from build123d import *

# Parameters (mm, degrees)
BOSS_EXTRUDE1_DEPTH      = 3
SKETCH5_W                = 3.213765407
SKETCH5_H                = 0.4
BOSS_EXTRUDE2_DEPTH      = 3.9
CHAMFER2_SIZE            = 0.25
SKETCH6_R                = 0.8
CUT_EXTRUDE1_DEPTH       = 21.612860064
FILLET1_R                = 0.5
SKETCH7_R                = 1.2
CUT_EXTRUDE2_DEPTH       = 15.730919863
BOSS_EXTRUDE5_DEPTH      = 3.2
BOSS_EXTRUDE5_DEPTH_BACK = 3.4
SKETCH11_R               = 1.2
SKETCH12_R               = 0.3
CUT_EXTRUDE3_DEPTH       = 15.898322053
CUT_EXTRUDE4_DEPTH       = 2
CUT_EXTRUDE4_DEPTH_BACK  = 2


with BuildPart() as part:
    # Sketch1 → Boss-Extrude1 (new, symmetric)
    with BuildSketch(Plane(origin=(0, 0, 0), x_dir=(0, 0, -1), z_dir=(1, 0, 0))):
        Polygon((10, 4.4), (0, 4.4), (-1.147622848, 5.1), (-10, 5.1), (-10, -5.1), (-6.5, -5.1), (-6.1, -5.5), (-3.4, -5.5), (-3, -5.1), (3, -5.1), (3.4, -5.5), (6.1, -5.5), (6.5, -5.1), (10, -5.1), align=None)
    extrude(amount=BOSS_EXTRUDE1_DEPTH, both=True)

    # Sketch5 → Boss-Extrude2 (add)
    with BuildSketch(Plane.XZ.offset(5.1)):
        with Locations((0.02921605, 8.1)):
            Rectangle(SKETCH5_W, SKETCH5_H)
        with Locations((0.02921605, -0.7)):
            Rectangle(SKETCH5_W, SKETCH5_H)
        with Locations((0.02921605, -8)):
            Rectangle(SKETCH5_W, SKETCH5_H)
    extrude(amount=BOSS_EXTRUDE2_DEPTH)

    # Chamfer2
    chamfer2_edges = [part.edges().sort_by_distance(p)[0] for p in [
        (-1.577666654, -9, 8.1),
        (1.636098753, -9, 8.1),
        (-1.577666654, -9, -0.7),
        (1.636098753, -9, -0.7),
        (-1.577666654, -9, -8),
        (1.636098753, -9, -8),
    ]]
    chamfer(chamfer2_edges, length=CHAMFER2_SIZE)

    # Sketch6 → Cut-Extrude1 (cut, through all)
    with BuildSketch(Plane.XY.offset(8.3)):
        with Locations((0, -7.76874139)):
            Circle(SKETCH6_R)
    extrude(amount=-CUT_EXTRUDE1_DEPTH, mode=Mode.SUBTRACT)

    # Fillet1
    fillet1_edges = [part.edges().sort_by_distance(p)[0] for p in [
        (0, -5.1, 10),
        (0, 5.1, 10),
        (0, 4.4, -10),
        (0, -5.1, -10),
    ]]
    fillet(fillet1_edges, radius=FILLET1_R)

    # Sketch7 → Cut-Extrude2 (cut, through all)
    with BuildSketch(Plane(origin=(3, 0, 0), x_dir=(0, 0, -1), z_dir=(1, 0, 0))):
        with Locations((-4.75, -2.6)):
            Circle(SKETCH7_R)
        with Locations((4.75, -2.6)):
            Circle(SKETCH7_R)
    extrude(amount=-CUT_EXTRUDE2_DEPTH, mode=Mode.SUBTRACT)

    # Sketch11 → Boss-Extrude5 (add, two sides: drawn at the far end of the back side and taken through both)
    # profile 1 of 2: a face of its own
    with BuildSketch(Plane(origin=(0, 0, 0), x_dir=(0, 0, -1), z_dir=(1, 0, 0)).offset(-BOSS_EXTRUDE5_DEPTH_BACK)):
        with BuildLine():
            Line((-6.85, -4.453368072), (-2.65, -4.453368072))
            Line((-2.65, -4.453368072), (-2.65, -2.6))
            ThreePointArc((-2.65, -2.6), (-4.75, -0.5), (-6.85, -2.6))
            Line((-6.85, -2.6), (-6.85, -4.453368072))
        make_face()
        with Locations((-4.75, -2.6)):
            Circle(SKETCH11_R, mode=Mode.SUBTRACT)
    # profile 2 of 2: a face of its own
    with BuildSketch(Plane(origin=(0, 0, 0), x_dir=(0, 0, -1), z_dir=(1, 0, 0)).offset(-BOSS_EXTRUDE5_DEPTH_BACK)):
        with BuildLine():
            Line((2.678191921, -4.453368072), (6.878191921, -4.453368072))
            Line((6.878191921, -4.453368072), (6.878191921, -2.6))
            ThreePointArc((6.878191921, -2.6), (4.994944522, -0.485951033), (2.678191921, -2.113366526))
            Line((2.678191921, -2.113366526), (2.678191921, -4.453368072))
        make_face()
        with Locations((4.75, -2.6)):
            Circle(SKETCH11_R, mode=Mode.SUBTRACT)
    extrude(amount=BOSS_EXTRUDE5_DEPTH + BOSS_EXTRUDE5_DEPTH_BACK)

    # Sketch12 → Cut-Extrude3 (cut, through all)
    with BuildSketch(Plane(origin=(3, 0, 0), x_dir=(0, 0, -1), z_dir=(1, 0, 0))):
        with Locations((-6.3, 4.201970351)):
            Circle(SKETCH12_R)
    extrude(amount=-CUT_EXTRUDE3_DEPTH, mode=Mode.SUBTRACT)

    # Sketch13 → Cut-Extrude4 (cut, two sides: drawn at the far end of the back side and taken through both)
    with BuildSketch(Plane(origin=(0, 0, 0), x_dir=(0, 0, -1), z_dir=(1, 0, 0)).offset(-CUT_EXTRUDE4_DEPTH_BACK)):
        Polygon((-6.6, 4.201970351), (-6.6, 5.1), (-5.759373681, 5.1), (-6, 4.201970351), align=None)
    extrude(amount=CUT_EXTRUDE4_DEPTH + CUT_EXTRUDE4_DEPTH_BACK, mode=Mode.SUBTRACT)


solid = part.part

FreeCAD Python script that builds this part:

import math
import FreeCAD as App
import Part
import Sketcher

V = App.Vector
Q = App.Units.Quantity


def edges_at(feature, points):
    """Names of the edges that pass closest to the given points."""
    edges = feature.Shape.Edges
    near = lambda p: min(range(len(edges)), key=lambda i: edges[i].distToShape(Part.Vertex(*p))[0])
    return sorted({f"Edge{near(p) + 1}" for p in points})


def add_polygon(sketch, points):
    """Adds a closed chain of lines whose ends are joined by coincident constraints."""
    first, n = sketch.GeometryCount, len(points)
    for a, b in zip(points, points[1:] + points[:1]):
        sketch.addGeometry(Part.LineSegment(App.Vector(*a, 0), App.Vector(*b, 0)), False)
    for i in range(n):
        sketch.addConstraint(Sketcher.Constraint("Coincident", first + i, 2, first + (i + 1) % n, 1))

doc = App.newDocument("Part")
body = doc.addObject("PartDesign::Body", "Body")

sketch1 = body.newObject("Sketcher::SketchObject", "Sketch")
sketch1.AttachmentSupport = (doc.getObject("YZ_Plane"), [""])
sketch1.MapMode = "FlatFace"
add_polygon(sketch1, [(4.4, -10), (4.4, 0), (5.1, 1.147623), (5.1, 10), (-5.1, 10), (-5.1, 6.5), (-5.5, 6.1), (-5.5, 3.4), (-5.1, 3), (-5.1, -3), (-5.5, -3.4), (-5.5, -6.1), (-5.1, -6.5), (-5.1, -10)])
sketch1.addConstraint(Sketcher.Constraint("Vertical", 0))
sketch1.addConstraint(Sketcher.Constraint("Vertical", 2))
sketch1.addConstraint(Sketcher.Constraint("Horizontal", 3))
sketch1.addConstraint(Sketcher.Constraint("Vertical", 4))
sketch1.addConstraint(Sketcher.Constraint("Vertical", 6))
sketch1.addConstraint(Sketcher.Constraint("Vertical", 8))
sketch1.addConstraint(Sketcher.Constraint("Vertical", 10))
sketch1.addConstraint(Sketcher.Constraint("Vertical", 12))
sketch1.addConstraint(Sketcher.Constraint("Horizontal", 13))
sketch1.addConstraint(Sketcher.Constraint("Symmetric", 2, 2, 12, 2, -1, 1))
sketch1.addConstraint(Sketcher.Constraint("Symmetric", 6, 2, 9, 2, -1))
sketch1.addConstraint(Sketcher.Constraint("Symmetric", 4, 2, 11, 2, -1))
sketch1.addConstraint(Sketcher.Constraint("PointOnObject", 0, 2, -1))
sketch1.addConstraint(Sketcher.Constraint("Perpendicular", 5, 7))
sketch1.addConstraint(Sketcher.Constraint("Perpendicular", 7, 9))
sketch1.addConstraint(Sketcher.Constraint("Perpendicular", 9, 11))
sketch1.addConstraint(Sketcher.Constraint("Vertical", 4, 2, 7, 2))
sketch1.addConstraint(Sketcher.Constraint("Equal", 6, 10))
sketch1.addConstraint(Sketcher.Constraint("DistanceY", 0, 1, 0, 2, 10.0))
sketch1.addConstraint(Sketcher.Constraint("DistanceY", 8, 2, 8, 1, 6.0))
sketch1.addConstraint(Sketcher.Constraint("DistanceX", 3, 2, 3, 1, 10.2))
sketch1.addConstraint(Sketcher.Constraint("DistanceX", 13, 1, 13, 2, 9.5))
sketch1.addConstraint(Sketcher.Constraint("DistanceY", 4, 2, 4, 1, 3.5))
sketch1.addConstraint(Sketcher.Constraint("DistanceY", 6, 2, 6, 1, 2.7))
sketch1.addConstraint(Sketcher.Constraint("Distance", 1, 1.344261))
pad1 = body.newObject("PartDesign::Pad", "Pad")
pad1.Profile = sketch1
pad1.Length = 6
pad1.Midplane = True

sketch2 = body.newObject("Sketcher::SketchObject", "Sketch001")
sketch2.AttachmentSupport = (doc.getObject("XZ_Plane"), [""])
sketch2.MapMode = "FlatFace"
sketch2.AttachmentOffset = App.Placement(V(0, 0, 5.1), App.Rotation())
add_polygon(sketch2, [(-1.577667, 8.3), (-1.577667, 7.9), (1.636099, 7.9), (1.636099, 8.3)])
add_polygon(sketch2, [(-1.577667, -0.5), (-1.577667, -0.9), (1.636099, -0.9), (1.636099, -0.5)])
add_polygon(sketch2, [(-1.577667, -7.8), (-1.577667, -8.2), (1.636099, -8.2), (1.636099, -7.8)])
sketch2.addConstraint(Sketcher.Constraint("Vertical", 0))
sketch2.addConstraint(Sketcher.Constraint("Horizontal", 1))
sketch2.addConstraint(Sketcher.Constraint("Vertical", 2))
sketch2.addConstraint(Sketcher.Constraint("Horizontal", 3))
sketch2.addConstraint(Sketcher.Constraint("Vertical", 4))
sketch2.addConstraint(Sketcher.Constraint("Horizontal", 5))
sketch2.addConstraint(Sketcher.Constraint("Vertical", 6))
sketch2.addConstraint(Sketcher.Constraint("Horizontal", 7))
sketch2.addConstraint(Sketcher.Constraint("Vertical", 8))
sketch2.addConstraint(Sketcher.Constraint("Horizontal", 9))
sketch2.addConstraint(Sketcher.Constraint("Vertical", 10))
sketch2.addConstraint(Sketcher.Constraint("Horizontal", 11))
sketch2.addConstraint(Sketcher.Constraint("Vertical", 3, 2, 4, 2))
sketch2.addConstraint(Sketcher.Constraint("Vertical", 2, 2, 5, 2))
sketch2.addConstraint(Sketcher.Constraint("Vertical", 7, 2, 8, 2))
sketch2.addConstraint(Sketcher.Constraint("Vertical", 6, 2, 9, 2))
sketch2.addConstraint(Sketcher.Constraint("Equal", 2, 4))
sketch2.addConstraint(Sketcher.Constraint("Equal", 6, 8))
sketch2.addConstraint(Sketcher.Constraint("DistanceY", 0, 2, 0, 1, 0.4))
sketch2.addConstraint(Sketcher.Constraint("DistanceY", -1, 1, 0, 2, 7.9))
sketch2.addConstraint(Sketcher.Constraint("DistanceY", 4, 2, -1, 1, 0.9))
sketch2.addConstraint(Sketcher.Constraint("DistanceY", 8, 2, -1, 1, 8.2))
sketch2.addConstraint(Sketcher.Constraint("DistanceX", -1, 1, 1, 2, 1.636099))
sketch2.addConstraint(Sketcher.Constraint("DistanceX", 1, 1, 1, 2, 3.213765))
pad2 = body.newObject("PartDesign::Pad", "Pad001")
pad2.Profile = sketch2
pad2.Length = 3.9
doc.recompute()

chamfer = body.newObject("PartDesign::Chamfer", "Chamfer")
chamfer.Base = (pad2, edges_at(pad2, [
    (-1.578, -9, 8.1),
    (1.636, -9, 8.1),
    (-1.578, -9, -0.7),
    (1.636, -9, -0.7),
    (-1.578, -9, -8),
    (1.636, -9, -8),
]))
chamfer.Size = 0.25

sketch3 = body.newObject("Sketcher::SketchObject", "Sketch002")
sketch3.AttachmentSupport = (doc.getObject("XY_Plane"), [""])
sketch3.MapMode = "FlatFace"
sketch3.AttachmentOffset = App.Placement(V(0, 0, 8.3), App.Rotation())
sketch3.addGeometry(Part.Circle(V(0, -7.768741, 0), V(0, 0, 1), 0.8), False)
sketch3.addConstraint(Sketcher.Constraint("PointOnObject", 0, 3, -2))
sketch3.addConstraint(Sketcher.Constraint("Diameter", 0, 1.6))
sketch3.addConstraint(Sketcher.Constraint("DistanceY", 0, 3, -1, 1, 7.768741))
pocket1 = body.newObject("PartDesign::Pocket", "Pocket")
pocket1.Profile = sketch3
pocket1.Type = "ThroughAll"
doc.recompute()

fillet = body.newObject("PartDesign::Fillet", "Fillet")
fillet.Base = (pocket1, edges_at(pocket1, [
    (0, -5.1, 10),
    (0, 5.1, 10),
    (0, 4.4, -10),
    (0, -5.1, -10),
]))
fillet.Radius = 0.5

sketch4 = body.newObject("Sketcher::SketchObject", "Sketch003")
sketch4.AttachmentSupport = (doc.getObject("YZ_Plane"), [""])
sketch4.MapMode = "FlatFace"
sketch4.AttachmentOffset = App.Placement(V(0, 0, 3), App.Rotation())
sketch4.addGeometry(Part.Circle(V(-2.6, 4.75, 0), V(0, 0, 1), 1.2), False)
sketch4.addGeometry(Part.Circle(V(-2.6, -4.75, 0), V(0, 0, 1), 1.2), False)
sketch4.addConstraint(Sketcher.Constraint("Equal", 0, 1))
sketch4.addConstraint(Sketcher.Constraint("Symmetric", 0, 3, 1, 3, -1))
sketch4.addConstraint(Sketcher.Constraint("Diameter", 0, 2.4))
sketch4.addConstraint(Sketcher.Constraint("DistanceX", 0, 3, -1, 1, 2.6))
sketch4.addConstraint(Sketcher.Constraint("DistanceY", 1, 3, 0, 3, 9.5))
pocket2 = body.newObject("PartDesign::Pocket", "Pocket001")
pocket2.Profile = sketch4
pocket2.Type = "ThroughAll"

sketch5 = body.newObject("Sketcher::SketchObject", "Sketch004")
sketch5.AttachmentSupport = (doc.getObject("YZ_Plane"), [""])
sketch5.MapMode = "FlatFace"
sketch5.addGeometry(Part.LineSegment(V(-4.453368, 6.85, 0), V(-4.453368, 2.65, 0)), False)
sketch5.addGeometry(Part.LineSegment(V(-4.453368, 2.65, 0), V(-2.6, 2.65, 0)), False)
sketch5.addGeometry(Part.ArcOfCircle(Part.Circle(V(-2.6, 4.75, 0), V(0, 0, 1), 2.1), math.radians(-90), math.radians(90)), False)
sketch5.addGeometry(Part.LineSegment(V(-2.6, 6.85, 0), V(-4.453368, 6.85, 0)), False)
sketch5.addGeometry(Part.Circle(V(-2.6, 4.75, 0), V(0, 0, 1), 1.2), False)
sketch5.addGeometry(Part.LineSegment(V(-4.453368, -2.678192, 0), V(-4.453368, -6.878192, 0)), False)
sketch5.addGeometry(Part.LineSegment(V(-4.453368, -6.878192, 0), V(-2.6, -6.878192, 0)), False)
sketch5.addGeometry(Part.ArcOfCircle(Part.Circle(V(-2.6, -4.75, 0), V(0, 0, 1), 2.128192), math.radians(-90), math.radians(76.781776)), False)
sketch5.addGeometry(Part.LineSegment(V(-2.113367, -2.678192, 0), V(-4.453368, -2.678192, 0)), False)
sketch5.addGeometry(Part.Circle(V(-2.6, -4.75, 0), V(0, 0, 1), 1.2), False)
sketch5.addConstraint(Sketcher.Constraint("Coincident", 0, 2, 1, 1))
sketch5.addConstraint(Sketcher.Constraint("Tangent", 1, 2, 2, 1))
sketch5.addConstraint(Sketcher.Constraint("Tangent", 2, 2, 3, 1))
sketch5.addConstraint(Sketcher.Constraint("Coincident", 3, 2, 0, 1))
sketch5.addConstraint(Sketcher.Constraint("Coincident", 5, 2, 6, 1))
sketch5.addConstraint(Sketcher.Constraint("Tangent", 6, 2, 7, 1))
sketch5.addConstraint(Sketcher.Constraint("Coincident", 7, 2, 8, 1))
sketch5.addConstraint(Sketcher.Constraint("Coincident", 8, 2, 5, 1))
sketch5.addConstraint(Sketcher.Constraint("Vertical", 0))
sketch5.addConstraint(Sketcher.Constraint("Horizontal", 1))
sketch5.addConstraint(Sketcher.Constraint("Horizontal", 3))
sketch5.addConstraint(Sketcher.Constraint("Vertical", 5))
sketch5.addConstraint(Sketcher.Constraint("Horizontal", 6))
sketch5.addConstraint(Sketcher.Constraint("Horizontal", 8))
sketch5.addConstraint(Sketcher.Constraint("Coincident", 4, 3, 2, 3))
sketch5.addConstraint(Sketcher.Constraint("Coincident", 9, 3, 7, 3))
sketch5.addConstraint(Sketcher.Constraint("Equal", 4, 9))
sketch5.addConstraint(Sketcher.Constraint("Symmetric", 2, 3, 7, 3, -1))
sketch5.addConstraint(Sketcher.Constraint("Vertical", 3, 2, 5, 2))
sketch5.addConstraint(Sketcher.Constraint("Equal", 0, 5))
sketch5.addConstraint(Sketcher.Constraint("Diameter", 4, 2.4))
sketch5.addConstraint(Sketcher.Constraint("Radius", 2, 2.1))
sketch5.addConstraint(Sketcher.Constraint("DistanceX", 8, 2, 8, 1, 2.340002))
sketch5.addConstraint(Sketcher.Constraint("DistanceX", 2, 3, -1, 1, 2.6))
sketch5.addConstraint(Sketcher.Constraint("DistanceY", 7, 3, 2, 3, 9.5))
sketch5.addConstraint(Sketcher.Constraint("Radius", 7, 2.128192))
pad3 = body.newObject("PartDesign::Pad", "Pad002")
pad3.Profile = sketch5
pad3.Type = "TwoLengths"
pad3.Length = 3.2
pad3.Length2 = 3.4

sketch6 = body.newObject("Sketcher::SketchObject", "Sketch005")
sketch6.AttachmentSupport = (doc.getObject("YZ_Plane"), [""])
sketch6.MapMode = "FlatFace"
sketch6.AttachmentOffset = App.Placement(V(0, 0, 3), App.Rotation())
sketch6.addGeometry(Part.Circle(V(4.20197, 6.3, 0), V(0, 0, 1), 0.3), False)
sketch6.addConstraint(Sketcher.Constraint("Diameter", 0, 0.6))
sketch6.addConstraint(Sketcher.Constraint("DistanceY", -1, 1, 0, 3, 6.3))
sketch6.addConstraint(Sketcher.Constraint("DistanceX", -1, 1, 0, 3, 4.20197))
pocket3 = body.newObject("PartDesign::Pocket", "Pocket002")
pocket3.Profile = sketch6
pocket3.Type = "ThroughAll"

sketch7 = body.newObject("Sketcher::SketchObject", "Sketch006")
sketch7.AttachmentSupport = (doc.getObject("YZ_Plane"), [""])
sketch7.MapMode = "FlatFace"
add_polygon(sketch7, [(5.1, 6.6), (4.20197, 6.6), (4.20197, 6), (5.1, 5.759374)])
sketch7.addConstraint(Sketcher.Constraint("Horizontal", 0))
sketch7.addConstraint(Sketcher.Constraint("Vertical", 1))
sketch7.addConstraint(Sketcher.Constraint("Vertical", 3))
sketch7.addConstraint(Sketcher.Constraint("Angle", 2, Q("-15 deg")))
sketch7.addConstraint(Sketcher.Constraint("DistanceY", 1, 2, 1, 1, 0.6))
sketch7.addConstraint(Sketcher.Constraint("DistanceY", -1, 1, 1, 2, 6.0))
sketch7.addConstraint(Sketcher.Constraint("DistanceX", -1, 1, 2, 2, 5.1))
sketch7.addConstraint(Sketcher.Constraint("DistanceX", 0, 2, 0, 1, 0.89803))
pocket4 = body.newObject("PartDesign::Pocket", "Pocket003")
pocket4.Profile = sketch7
pocket4.Type = "TwoLengths"
pocket4.Length = 2
pocket4.Length2 = 2
pocket4.Reversed = True

doc.recompute()
